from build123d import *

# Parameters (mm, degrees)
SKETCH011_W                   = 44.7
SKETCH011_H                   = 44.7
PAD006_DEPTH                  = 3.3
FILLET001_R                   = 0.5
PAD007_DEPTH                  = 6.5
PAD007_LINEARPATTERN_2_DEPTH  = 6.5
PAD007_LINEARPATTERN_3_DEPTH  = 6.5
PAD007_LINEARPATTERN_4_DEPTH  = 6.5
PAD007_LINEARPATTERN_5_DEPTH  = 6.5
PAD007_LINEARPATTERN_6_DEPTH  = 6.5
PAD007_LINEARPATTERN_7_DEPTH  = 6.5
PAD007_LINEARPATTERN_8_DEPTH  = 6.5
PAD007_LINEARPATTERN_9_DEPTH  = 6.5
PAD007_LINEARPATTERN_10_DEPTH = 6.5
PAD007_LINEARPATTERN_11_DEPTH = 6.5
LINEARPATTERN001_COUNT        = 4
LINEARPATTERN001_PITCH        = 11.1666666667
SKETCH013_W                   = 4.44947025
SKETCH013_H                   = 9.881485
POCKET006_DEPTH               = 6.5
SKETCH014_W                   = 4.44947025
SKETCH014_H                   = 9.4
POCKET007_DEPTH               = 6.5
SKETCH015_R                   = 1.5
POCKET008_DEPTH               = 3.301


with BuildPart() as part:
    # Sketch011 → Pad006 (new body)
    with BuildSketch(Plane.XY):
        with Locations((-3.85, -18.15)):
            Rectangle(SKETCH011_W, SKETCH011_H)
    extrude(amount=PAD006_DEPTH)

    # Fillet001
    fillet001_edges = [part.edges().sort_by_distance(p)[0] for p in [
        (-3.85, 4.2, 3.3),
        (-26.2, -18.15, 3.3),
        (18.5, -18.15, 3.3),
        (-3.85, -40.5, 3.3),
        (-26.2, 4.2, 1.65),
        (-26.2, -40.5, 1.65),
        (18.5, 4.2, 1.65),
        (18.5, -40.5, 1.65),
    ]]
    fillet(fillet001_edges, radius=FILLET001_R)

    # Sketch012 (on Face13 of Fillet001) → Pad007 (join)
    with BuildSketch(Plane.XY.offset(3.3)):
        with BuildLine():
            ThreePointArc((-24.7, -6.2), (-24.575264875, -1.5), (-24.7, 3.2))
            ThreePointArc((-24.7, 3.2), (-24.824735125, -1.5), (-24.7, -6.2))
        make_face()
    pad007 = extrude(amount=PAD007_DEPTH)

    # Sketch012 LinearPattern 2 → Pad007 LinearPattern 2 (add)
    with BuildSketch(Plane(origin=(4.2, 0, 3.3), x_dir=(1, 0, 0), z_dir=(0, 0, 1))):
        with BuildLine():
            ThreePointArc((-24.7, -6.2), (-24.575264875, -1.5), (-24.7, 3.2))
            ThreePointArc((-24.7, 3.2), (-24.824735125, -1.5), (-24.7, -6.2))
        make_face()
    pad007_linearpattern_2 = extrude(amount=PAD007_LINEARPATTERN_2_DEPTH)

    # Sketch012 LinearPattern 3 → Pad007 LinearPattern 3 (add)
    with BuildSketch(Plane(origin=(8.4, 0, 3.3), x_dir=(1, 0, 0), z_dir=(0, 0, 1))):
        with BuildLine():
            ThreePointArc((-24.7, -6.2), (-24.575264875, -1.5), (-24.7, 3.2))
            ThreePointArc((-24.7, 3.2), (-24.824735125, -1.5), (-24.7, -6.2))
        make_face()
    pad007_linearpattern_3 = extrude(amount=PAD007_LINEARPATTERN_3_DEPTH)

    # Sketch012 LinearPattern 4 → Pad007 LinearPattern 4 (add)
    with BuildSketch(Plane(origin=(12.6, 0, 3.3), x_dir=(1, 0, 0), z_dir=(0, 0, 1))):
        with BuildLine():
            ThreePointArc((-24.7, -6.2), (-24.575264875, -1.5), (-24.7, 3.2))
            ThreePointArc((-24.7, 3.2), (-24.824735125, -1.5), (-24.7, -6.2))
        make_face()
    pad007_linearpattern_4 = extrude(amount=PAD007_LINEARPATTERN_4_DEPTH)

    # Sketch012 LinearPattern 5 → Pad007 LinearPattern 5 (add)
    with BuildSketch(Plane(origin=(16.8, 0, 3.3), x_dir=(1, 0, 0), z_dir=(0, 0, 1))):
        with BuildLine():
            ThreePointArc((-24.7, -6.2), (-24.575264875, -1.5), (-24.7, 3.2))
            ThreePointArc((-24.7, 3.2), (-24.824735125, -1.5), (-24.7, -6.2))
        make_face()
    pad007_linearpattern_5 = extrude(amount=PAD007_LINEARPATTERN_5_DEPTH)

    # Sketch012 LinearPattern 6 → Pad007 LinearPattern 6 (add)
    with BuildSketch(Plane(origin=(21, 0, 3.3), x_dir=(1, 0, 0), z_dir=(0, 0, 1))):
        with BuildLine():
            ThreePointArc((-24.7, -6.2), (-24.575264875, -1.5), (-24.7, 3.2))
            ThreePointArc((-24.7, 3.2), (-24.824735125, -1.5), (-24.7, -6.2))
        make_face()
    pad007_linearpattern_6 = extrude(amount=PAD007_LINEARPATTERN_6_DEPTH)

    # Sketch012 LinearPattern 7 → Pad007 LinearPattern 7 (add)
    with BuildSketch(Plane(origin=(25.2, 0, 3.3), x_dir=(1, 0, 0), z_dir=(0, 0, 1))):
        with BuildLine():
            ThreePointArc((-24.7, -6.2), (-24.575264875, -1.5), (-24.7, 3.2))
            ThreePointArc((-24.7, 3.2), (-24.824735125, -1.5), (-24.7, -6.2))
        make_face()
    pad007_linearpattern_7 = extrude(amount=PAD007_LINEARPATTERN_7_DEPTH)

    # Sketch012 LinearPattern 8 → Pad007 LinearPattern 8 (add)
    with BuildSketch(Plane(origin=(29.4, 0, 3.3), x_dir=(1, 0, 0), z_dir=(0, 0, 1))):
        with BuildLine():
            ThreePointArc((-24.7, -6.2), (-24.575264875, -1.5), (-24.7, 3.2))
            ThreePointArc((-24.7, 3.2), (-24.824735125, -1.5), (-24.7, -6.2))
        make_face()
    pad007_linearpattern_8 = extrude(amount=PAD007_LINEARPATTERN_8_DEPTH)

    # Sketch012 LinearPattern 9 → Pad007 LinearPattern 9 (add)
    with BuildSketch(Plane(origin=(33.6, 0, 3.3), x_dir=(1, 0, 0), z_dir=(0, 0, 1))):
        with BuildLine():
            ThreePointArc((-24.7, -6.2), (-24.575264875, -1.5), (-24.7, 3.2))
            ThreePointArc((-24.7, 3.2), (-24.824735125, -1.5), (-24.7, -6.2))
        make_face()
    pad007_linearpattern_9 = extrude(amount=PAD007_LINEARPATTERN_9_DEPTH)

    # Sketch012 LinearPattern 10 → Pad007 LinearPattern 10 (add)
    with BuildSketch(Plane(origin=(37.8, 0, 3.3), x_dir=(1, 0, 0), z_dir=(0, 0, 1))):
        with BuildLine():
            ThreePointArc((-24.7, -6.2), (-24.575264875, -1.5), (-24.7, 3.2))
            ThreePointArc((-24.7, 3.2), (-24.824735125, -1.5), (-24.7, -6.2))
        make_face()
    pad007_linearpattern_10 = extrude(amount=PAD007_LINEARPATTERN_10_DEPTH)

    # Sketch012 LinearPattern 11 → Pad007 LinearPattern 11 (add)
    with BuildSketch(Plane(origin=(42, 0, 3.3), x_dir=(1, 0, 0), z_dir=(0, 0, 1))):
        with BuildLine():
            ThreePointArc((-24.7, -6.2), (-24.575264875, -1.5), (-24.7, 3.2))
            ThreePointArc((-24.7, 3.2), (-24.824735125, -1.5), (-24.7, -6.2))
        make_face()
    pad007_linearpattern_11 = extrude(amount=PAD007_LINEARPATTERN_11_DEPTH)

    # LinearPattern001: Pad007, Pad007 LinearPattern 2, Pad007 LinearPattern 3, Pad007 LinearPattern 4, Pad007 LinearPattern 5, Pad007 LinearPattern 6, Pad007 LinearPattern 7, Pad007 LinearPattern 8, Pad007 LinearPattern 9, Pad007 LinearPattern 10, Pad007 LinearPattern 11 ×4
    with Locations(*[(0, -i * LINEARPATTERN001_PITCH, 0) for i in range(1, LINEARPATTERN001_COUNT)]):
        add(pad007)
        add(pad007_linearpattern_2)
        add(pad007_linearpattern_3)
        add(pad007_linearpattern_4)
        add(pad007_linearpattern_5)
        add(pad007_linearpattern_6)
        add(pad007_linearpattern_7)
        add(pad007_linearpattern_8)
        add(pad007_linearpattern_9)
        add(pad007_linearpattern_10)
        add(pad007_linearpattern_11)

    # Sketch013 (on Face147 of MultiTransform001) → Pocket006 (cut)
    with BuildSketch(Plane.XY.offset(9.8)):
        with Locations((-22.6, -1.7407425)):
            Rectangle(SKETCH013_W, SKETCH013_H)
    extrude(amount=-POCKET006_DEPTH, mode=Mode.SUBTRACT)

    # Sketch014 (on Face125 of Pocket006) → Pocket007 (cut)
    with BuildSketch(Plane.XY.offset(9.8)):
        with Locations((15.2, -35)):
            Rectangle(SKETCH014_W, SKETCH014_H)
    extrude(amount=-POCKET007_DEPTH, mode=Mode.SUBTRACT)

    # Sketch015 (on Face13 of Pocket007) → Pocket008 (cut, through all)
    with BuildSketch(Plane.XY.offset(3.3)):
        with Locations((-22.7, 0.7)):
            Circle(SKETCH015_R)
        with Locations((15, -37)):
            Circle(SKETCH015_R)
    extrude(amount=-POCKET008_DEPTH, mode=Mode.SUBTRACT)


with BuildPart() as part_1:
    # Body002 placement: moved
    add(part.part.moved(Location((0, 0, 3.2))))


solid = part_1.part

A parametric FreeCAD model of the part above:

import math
import FreeCAD as App
import Part
import Sketcher
Q = App.Units.Quantity


def edges_at(feature, points):
    """Names of the edges that pass closest to the given points."""
    edges = feature.Shape.Edges
    near = lambda p: min(range(len(edges)), key=lambda i: edges[i].distToShape(Part.Vertex(*p))[0])
    return sorted({f"Edge{near(p) + 1}" for p in points})


def add_polygon(sketch, points):
    """Adds a closed chain of lines whose ends are joined by coincident constraints."""
    first, n = sketch.GeometryCount, len(points)
    for a, b in zip(points, points[1:] + points[:1]):
        sketch.addGeometry(Part.LineSegment(App.Vector(*a, 0), App.Vector(*b, 0)), False)
    for i in range(n):
        sketch.addConstraint(Sketcher.Constraint("Coincident", first + i, 2, first + (i + 1) % n, 1))

doc = App.newDocument("Part")
body = doc.addObject("PartDesign::Body", "Body")

# Sketch on XY plane
sketch1 = body.newObject("Sketcher::SketchObject", "Sketch")
sketch1.AttachmentSupport = (doc.getObject("XY_Plane"), [""])
sketch1.MapMode = "FlatFace"
add_polygon(sketch1, [(-26.2, 4.2), (-26.2, -40.5), (18.5, -40.5), (18.5, 4.2)])  # lines 0-3
sketch1.addConstraint(Sketcher.Constraint("Vertical", 0))
sketch1.addConstraint(Sketcher.Constraint("Horizontal", 1))
sketch1.addConstraint(Sketcher.Constraint("Vertical", 2))
sketch1.addConstraint(Sketcher.Constraint("Horizontal", 3))
sketch1.addConstraint(Sketcher.Constraint("Equal", 3, 0))
sketch1.addConstraint(Sketcher.Constraint("DistanceX", 1, 1, 1, 2, Q("44.7 mm")))
sketch1.addConstraint(Sketcher.Constraint("DistanceX", 0, 2, -1, 1, Q("26.2 mm")))
sketch1.addConstraint(Sketcher.Constraint("DistanceY", 0, 2, -1, 1, Q("40.5 mm")))
pad1 = body.newObject("PartDesign::Pad", "Pad")
pad1.Profile = sketch1
pad1.Length = 3.3
doc.recompute()

fillet = body.newObject("PartDesign::Fillet", "Fillet")
fillet.Base = (pad1, edges_at(pad1, [
    (-3.85, 4.2, 3.3),
    (-26.2, -18.15, 3.3),
    (18.5, -18.15, 3.3),
    (-3.85, -40.5, 3.3),
    (-26.2, 4.2, 1.65),
    (-26.2, -40.5, 1.65),
    (18.5, 4.2, 1.65),
    (18.5, -40.5, 1.65),
]))
fillet.Radius = 0.5

# Sketch on XY plane
sketch2 = body.newObject("Sketcher::SketchObject", "Sketch001")
sketch2.AttachmentSupport = (doc.getObject("XY_Plane"), [""])
sketch2.MapMode = "FlatFace"
sketch2.AttachmentOffset = App.Placement(App.Vector(0, 0, 3.3), App.Rotation())
sketch2.addGeometry(Part.ArcOfCircle(Part.Circle(App.Vector(-113.185265, -1.5, 0), App.Vector(0, 0, 1), 88.61), math.radians(-3.040476), math.radians(3.040476)), False)
sketch2.addGeometry(Part.ArcOfCircle(Part.Circle(App.Vector(63.785265, -1.5, 0), App.Vector(0, 0, 1), 88.61), math.radians(176.959524), math.radians(183.040476)), False)
sketch2.addConstraint(Sketcher.Constraint("Coincident", 0, 1, 1, 2))
sketch2.addConstraint(Sketcher.Constraint("Coincident", 1, 1, 0, 2))
sketch2.addConstraint(Sketcher.Constraint("Equal", 0, 1))
sketch2.addConstraint(Sketcher.Constraint("Horizontal", 0, 3, 1, 3))
sketch2.addConstraint(Sketcher.Constraint("Radius", 0, Q("88.61 mm")))
sketch2.addConstraint(Sketcher.Constraint("DistanceY", 0, 3, -1, 1, Q("1.5 mm")))
sketch2.addConstraint(Sketcher.Constraint("DistanceX", 0, 1, -1, 1, Q("24.7 mm")))
sketch2.addConstraint(Sketcher.Constraint("DistanceY", 0, 1, -1, 1, Q("6.2 mm")))
pad2 = body.newObject("PartDesign::Pad", "Pad001")
pad2.Profile = sketch2
pad2.Length = 6.5

# Sketch on XY plane
sketch3 = body.newObject("Sketcher::SketchObject", "Sketch002")
sketch3.AttachmentSupport = (doc.getObject("XY_Plane"), [""])
sketch3.MapMode = "FlatFace"
sketch3.AttachmentOffset = App.Placement(App.Vector(0, 0, 3.3), App.Rotation())
sketch3.addGeometry(Part.ArcOfCircle(Part.Circle(App.Vector(-108.985265, -1.5, 0), App.Vector(0, 0, 1), 88.61), math.radians(-3.040476), math.radians(3.040476)), False)
sketch3.addGeometry(Part.ArcOfCircle(Part.Circle(App.Vector(67.985265, -1.5, 0), App.Vector(0, 0, 1), 88.61), math.radians(176.959524), math.radians(183.040476)), False)
sketch3.addConstraint(Sketcher.Constraint("Coincident", 0, 1, 1, 2))
sketch3.addConstraint(Sketcher.Constraint("Coincident", 1, 1, 0, 2))
sketch3.addConstraint(Sketcher.Constraint("Equal", 0, 1))
sketch3.addConstraint(Sketcher.Constraint("Horizontal", 0, 3, 1, 3))
sketch3.addConstraint(Sketcher.Constraint("Radius", 0, Q("88.61 mm")))
sketch3.addConstraint(Sketcher.Constraint("DistanceY", 0, 3, -1, 1, Q("1.5 mm")))
sketch3.addConstraint(Sketcher.Constraint("DistanceX", 0, 1, -1, 1, Q("20.5 mm")))
sketch3.addConstraint(Sketcher.Constraint("DistanceY", 0, 1, -1, 1, Q("6.2 mm")))
pad3 = body.newObject("PartDesign::Pad", "Pad002")
pad3.Profile = sketch3
pad3.Length = 6.5

# Sketch on XY plane
sketch4 = body.newObject("Sketcher::SketchObject", "Sketch003")
sketch4.AttachmentSupport = (doc.getObject("XY_Plane"), [""])
sketch4.MapMode = "FlatFace"
sketch4.AttachmentOffset = App.Placement(App.Vector(0, 0, 3.3), App.Rotation())
sketch4.addGeometry(Part.ArcOfCircle(Part.Circle(App.Vector(-104.785265, -1.5, 0), App.Vector(0, 0, 1), 88.61), math.radians(-3.040476), math.radians(3.040476)), False)
sketch4.addGeometry(Part.ArcOfCircle(Part.Circle(App.Vector(72.185265, -1.5, 0), App.Vector(0, 0, 1), 88.61), math.radians(176.959524), math.radians(183.040476)), False)
sketch4.addConstraint(Sketcher.Constraint("Coincident", 0, 1, 1, 2))
sketch4.addConstraint(Sketcher.Constraint("Coincident", 1, 1, 0, 2))
sketch4.addConstraint(Sketcher.Constraint("Equal", 0, 1))
sketch4.addConstraint(Sketcher.Constraint("Horizontal", 0, 3, 1, 3))
sketch4.addConstraint(Sketcher.Constraint("Radius", 0, Q("88.61 mm")))
sketch4.addConstraint(Sketcher.Constraint("DistanceY", 0, 3, -1, 1, Q("1.5 mm")))
sketch4.addConstraint(Sketcher.Constraint("DistanceX", 0, 1, -1, 1, Q("16.3 mm")))
sketch4.addConstraint(Sketcher.Constraint("DistanceY", 0, 1, -1, 1, Q("6.2 mm")))
pad4 = body.newObject("PartDesign::Pad", "Pad003")
pad4.Profile = sketch4
pad4.Length = 6.5

# Sketch on XY plane
sketch5 = body.newObject("Sketcher::SketchObject", "Sketch004")
sketch5.AttachmentSupport = (doc.getObject("XY_Plane"), [""])
sketch5.MapMode = "FlatFace"
sketch5.AttachmentOffset = App.Placement(App.Vector(0, 0, 3.3), App.Rotation())
sketch5.addGeometry(Part.ArcOfCircle(Part.Circle(App.Vector(-100.585265, -1.5, 0), App.Vector(0, 0, 1), 88.61), math.radians(-3.040476), math.radians(3.040476)), False)
sketch5.addGeometry(Part.ArcOfCircle(Part.Circle(App.Vector(76.385265, -1.5, 0), App.Vector(0, 0, 1), 88.61), math.radians(176.959524), math.radians(183.040476)), False)
sketch5.addConstraint(Sketcher.Constraint("Coincident", 0, 1, 1, 2))
sketch5.addConstraint(Sketcher.Constraint("Coincident", 1, 1, 0, 2))
sketch5.addConstraint(Sketcher.Constraint("Equal", 0, 1))
sketch5.addConstraint(Sketcher.Constraint("Horizontal", 0, 3, 1, 3))
sketch5.addConstraint(Sketcher.Constraint("Radius", 0, Q("88.61 mm")))
sketch5.addConstraint(Sketcher.Constraint("DistanceY", 0, 3, -1, 1, Q("1.5 mm")))
sketch5.addConstraint(Sketcher.Constraint("DistanceX", 0, 1, -1, 1, Q("12.1 mm")))
sketch5.addConstraint(Sketcher.Constraint("DistanceY", 0, 1, -1, 1, Q("6.2 mm")))
pad5 = body.newObject("PartDesign::Pad", "Pad004")
pad5.Profile = sketch5
pad5.Length = 6.5

# Sketch on XY plane
sketch6 = body.newObject("Sketcher::SketchObject", "Sketch005")
sketch6.AttachmentSupport = (doc.getObject("XY_Plane"), [""])
sketch6.MapMode = "FlatFace"
sketch6.AttachmentOffset = App.Placement(App.Vector(0, 0, 3.3), App.Rotation())
sketch6.addGeometry(Part.ArcOfCircle(Part.Circle(App.Vector(-96.385265, -1.5, 0), App.Vector(0, 0, 1), 88.61), math.radians(-3.040476), math.radians(3.040476)), False)
sketch6.addGeometry(Part.ArcOfCircle(Part.Circle(App.Vector(80.585265, -1.5, 0), App.Vector(0, 0, 1), 88.61), math.radians(176.959524), math.radians(183.040476)), False)
sketch6.addConstraint(Sketcher.Constraint("Coincident", 0, 1, 1, 2))
sketch6.addConstraint(Sketcher.Constraint("Coincident", 1, 1, 0, 2))
sketch6.addConstraint(Sketcher.Constraint("Equal", 0, 1))
sketch6.addConstraint(Sketcher.Constraint("Horizontal", 0, 3, 1, 3))
sketch6.addConstraint(Sketcher.Constraint("Radius", 0, Q("88.61 mm")))
sketch6.addConstraint(Sketcher.Constraint("DistanceY", 0, 3, -1, 1, Q("1.5 mm")))
sketch6.addConstraint(Sketcher.Constraint("DistanceX", 0, 1, -1, 1, Q("7.9 mm")))
sketch6.addConstraint(Sketcher.Constraint("DistanceY", 0, 1, -1, 1, Q("6.2 mm")))
pad6 = body.newObject("PartDesign::Pad", "Pad005")
pad6.Profile = sketch6
pad6.Length = 6.5

# Sketch on XY plane
sketch7 = body.newObject("Sketcher::SketchObject", "Sketch006")
sketch7.AttachmentSupport = (doc.getObject("XY_Plane"), [""])
sketch7.MapMode = "FlatFace"
sketch7.AttachmentOffset = App.Placement(App.Vector(0, 0, 3.3), App.Rotation())
sketch7.addGeometry(Part.ArcOfCircle(Part.Circle(App.Vector(-92.185265, -1.5, 0), App.Vector(0, 0, 1), 88.61), math.radians(-3.040476), math.radians(3.040476)), False)
sketch7.addGeometry(Part.ArcOfCircle(Part.Circle(App.Vector(84.785265, -1.5, 0), App.Vector(0, 0, 1), 88.61), math.radians(176.959524), math.radians(183.040476)), False)
sketch7.addConstraint(Sketcher.Constraint("Coincident", 0, 1, 1, 2))
sketch7.addConstraint(Sketcher.Constraint("Coincident", 1, 1, 0, 2))
sketch7.addConstraint(Sketcher.Constraint("Equal", 0, 1))
sketch7.addConstraint(Sketcher.Constraint("Horizontal", 0, 3, 1, 3))
sketch7.addConstraint(Sketcher.Constraint("Radius", 0, Q("88.61 mm")))
sketch7.addConstraint(Sketcher.Constraint("DistanceY", 0, 3, -1, 1, Q("1.5 mm")))
sketch7.addConstraint(Sketcher.Constraint("DistanceX", 0, 1, -1, 1, Q("3.7 mm")))
sketch7.addConstraint(Sketcher.Constraint("DistanceY", 0, 1, -1, 1, Q("6.2 mm")))
pad7 = body.newObject("PartDesign::Pad", "Pad006")
pad7.Profile = sketch7
pad7.Length = 6.5

# Sketch on XY plane
sketch8 = body.newObject("Sketcher::SketchObject", "Sketch007")
sketch8.AttachmentSupport = (doc.getObject("XY_Plane"), [""])
sketch8.MapMode = "FlatFace"
sketch8.AttachmentOffset = App.Placement(App.Vector(0, 0, 3.3), App.Rotation())
sketch8.addGeometry(Part.ArcOfCircle(Part.Circle(App.Vector(-87.985265, -1.5, 0), App.Vector(0, 0, 1), 88.61), math.radians(-3.040476), math.radians(3.040476)), False)
sketch8.addGeometry(Part.ArcOfCircle(Part.Circle(App.Vector(88.985265, -1.5, 0), App.Vector(0, 0, 1), 88.61), math.radians(176.959524), math.radians(183.040476)), False)
sketch8.addConstraint(Sketcher.Constraint("Coincident", 0, 1, 1, 2))
sketch8.addConstraint(Sketcher.Constraint("Coincident", 1, 1, 0, 2))
sketch8.addConstraint(Sketcher.Constraint("Equal", 0, 1))
sketch8.addConstraint(Sketcher.Constraint("Horizontal", 0, 3, 1, 3))
sketch8.addConstraint(Sketcher.Constraint("Radius", 0, Q("88.61 mm")))
sketch8.addConstraint(Sketcher.Constraint("DistanceY", 0, 3, -1, 1, Q("1.5 mm")))
sketch8.addConstraint(Sketcher.Constraint("DistanceX", -1, 1, 0, 1, Q("0.5 mm")))
sketch8.addConstraint(Sketcher.Constraint("DistanceY", 0, 1, -1, 1, Q("6.2 mm")))
pad8 = body.newObject("PartDesign::Pad", "Pad007")
pad8.Profile = sketch8
pad8.Length = 6.5

# Sketch on XY plane
sketch9 = body.newObject("Sketcher::SketchObject", "Sketch008")
sketch9.AttachmentSupport = (doc.getObject("XY_Plane"), [""])
sketch9.MapMode = "FlatFace"
sketch9.AttachmentOffset = App.Placement(App.Vector(0, 0, 3.3), App.Rotation())
sketch9.addGeometry(Part.ArcOfCircle(Part.Circle(App.Vector(-83.785265, -1.5, 0), App.Vector(0, 0, 1), 88.61), math.radians(-3.040476), math.radians(3.040476)), False)
sketch9.addGeometry(Part.ArcOfCircle(Part.Circle(App.Vector(93.185265, -1.5, 0), App.Vector(0, 0, 1), 88.61), math.radians(176.959524), math.radians(183.040476)), False)
sketch9.addConstraint(Sketcher.Constraint("Coincident", 0, 1, 1, 2))
sketch9.addConstraint(Sketcher.Constraint("Coincident", 1, 1, 0, 2))
sketch9.addConstraint(Sketcher.Constraint("Equal", 0, 1))
sketch9.addConstraint(Sketcher.Constraint("Horizontal", 0, 3, 1, 3))
sketch9.addConstraint(Sketcher.Constraint("Radius", 0, Q("88.61 mm")))
sketch9.addConstraint(Sketcher.Constraint("DistanceY", 0, 3, -1, 1, Q("1.5 mm")))
sketch9.addConstraint(Sketcher.Constraint("DistanceX", -1, 1, 0, 1, Q("4.7 mm")))
sketch9.addConstraint(Sketcher.Constraint("DistanceY", 0, 1, -1, 1, Q("6.2 mm")))
pad9 = body.newObject("PartDesign::Pad", "Pad008")
pad9.Profile = sketch9
pad9.Length = 6.5

# Sketch on XY plane
sketch10 = body.newObject("Sketcher::SketchObject", "Sketch009")
sketch10.AttachmentSupport = (doc.getObject("XY_Plane"), [""])
sketch10.MapMode = "FlatFace"
sketch10.AttachmentOffset = App.Placement(App.Vector(0, 0, 3.3), App.Rotation())
sketch10.addGeometry(Part.ArcOfCircle(Part.Circle(App.Vector(-79.585265, -1.5, 0), App.Vector(0, 0, 1), 88.61), math.radians(-3.040476), math.radians(3.040476)), False)
sketch10.addGeometry(Part.ArcOfCircle(Part.Circle(App.Vector(97.385265, -1.5, 0), App.Vector(0, 0, 1), 88.61), math.radians(176.959524), math.radians(183.040476)), False)
sketch10.addConstraint(Sketcher.Constraint("Coincident", 0, 1, 1, 2))
sketch10.addConstraint(Sketcher.Constraint("Coincident", 1, 1, 0, 2))
sketch10.addConstraint(Sketcher.Constraint("Equal", 0, 1))
sketch10.addConstraint(Sketcher.Constraint("Horizontal", 0, 3, 1, 3))
sketch10.addConstraint(Sketcher.Constraint("Radius", 0, Q("88.61 mm")))
sketch10.addConstraint(Sketcher.Constraint("DistanceY", 0, 3, -1, 1, Q("1.5 mm")))
sketch10.addConstraint(Sketcher.Constraint("DistanceX", -1, 1, 0, 1, Q("8.9 mm")))
sketch10.addConstraint(Sketcher.Constraint("DistanceY", 0, 1, -1, 1, Q("6.2 mm")))
pad10 = body.newObject("PartDesign::Pad", "Pad009")
pad10.Profile = sketch10
pad10.Length = 6.5

# Sketch on XY plane
sketch11 = body.newObject("Sketcher::SketchObject", "Sketch010")
sketch11.AttachmentSupport = (doc.getObject("XY_Plane"), [""])
sketch11.MapMode = "FlatFace"
sketch11.AttachmentOffset = App.Placement(App.Vector(0, 0, 3.3), App.Rotation())
sketch11.addGeometry(Part.ArcOfCircle(Part.Circle(App.Vector(-75.385265, -1.5, 0), App.Vector(0, 0, 1), 88.61), math.radians(-3.040476), math.radians(3.040476)), False)
sketch11.addGeometry(Part.ArcOfCircle(Part.Circle(App.Vector(101.585265, -1.5, 0), App.Vector(0, 0, 1), 88.61), math.radians(176.959524), math.radians(183.040476)), False)
sketch11.addConstraint(Sketcher.Constraint("Coincident", 0, 1, 1, 2))
sketch11.addConstraint(Sketcher.Constraint("Coincident", 1, 1, 0, 2))
sketch11.addConstraint(Sketcher.Constraint("Equal", 0, 1))
sketch11.addConstraint(Sketcher.Constraint("Horizontal", 0, 3, 1, 3))
sketch11.addConstraint(Sketcher.Constraint("Radius", 0, Q("88.61 mm")))
sketch11.addConstraint(Sketcher.Constraint("DistanceY", 0, 3, -1, 1, Q("1.5 mm")))
sketch11.addConstraint(Sketcher.Constraint("DistanceX", -1, 1, 0, 1, Q("13.1 mm")))
sketch11.addConstraint(Sketcher.Constraint("DistanceY", 0, 1, -1, 1, Q("6.2 mm")))
pad11 = body.newObject("PartDesign::Pad", "Pad010")
pad11.Profile = sketch11
pad11.Length = 6.5

# Sketch on XY plane
sketch12 = body.newObject("Sketcher::SketchObject", "Sketch011")
sketch12.AttachmentSupport = (doc.getObject("XY_Plane"), [""])
sketch12.MapMode = "FlatFace"
sketch12.AttachmentOffset = App.Placement(App.Vector(0, 0, 3.3), App.Rotation())
sketch12.addGeometry(Part.ArcOfCircle(Part.Circle(App.Vector(-71.185265, -1.5, 0), App.Vector(0, 0, 1), 88.61), math.radians(-3.040476), math.radians(3.040476)), False)
sketch12.addGeometry(Part.ArcOfCircle(Part.Circle(App.Vector(105.785265, -1.5, 0), App.Vector(0, 0, 1), 88.61), math.radians(176.959524), math.radians(183.040476)), False)
sketch12.addConstraint(Sketcher.Constraint("Coincident", 0, 1, 1, 2))
sketch12.addConstraint(Sketcher.Constraint("Coincident", 1, 1, 0, 2))
sketch12.addConstraint(Sketcher.Constraint("Equal", 0, 1))
sketch12.addConstraint(Sketcher.Constraint("Horizontal", 0, 3, 1, 3))
sketch12.addConstraint(Sketcher.Constraint("Radius", 0, Q("88.61 mm")))
sketch12.addConstraint(Sketcher.Constraint("DistanceY", 0, 3, -1, 1, Q("1.5 mm")))
sketch12.addConstraint(Sketcher.Constraint("DistanceX", -1, 1, 0, 1, Q("17.3 mm")))
sketch12.addConstraint(Sketcher.Constraint("DistanceY", 0, 1, -1, 1, Q("6.2 mm")))
pad12 = body.newObject("PartDesign::Pad", "Pad011")
pad12.Profile = sketch12
pad12.Length = 6.5
doc.recompute()

linearpattern = body.newObject("PartDesign::LinearPattern", "LinearPattern")
linearpattern.Originals = [pad2, pad3, pad4, pad5, pad6, pad7, pad8, pad9, pad10, pad11, pad12]
linearpattern.Direction = (doc.getObject("Y_Axis"), [""])
linearpattern.Mode = "offset"
linearpattern.Offset = 11.166667
linearpattern.Occurrences = 4
linearpattern.Reversed = True
body.Tip = linearpattern

# Sketch on XY plane
sketch13 = body.newObject("Sketcher::SketchObject", "Sketch012")
sketch13.AttachmentSupport = (doc.getObject("XY_Plane"), [""])
sketch13.MapMode = "FlatFace"
sketch13.AttachmentOffset = App.Placement(App.Vector(0, 0, 9.8), App.Rotation())
add_polygon(sketch13, [(-24.824735, 3.2), (-24.824735, -6.681485), (-20.375265, -6.681485), (-20.375265, 3.2)])  # lines 0-3
sketch13.addConstraint(Sketcher.Constraint("Vertical", 0))
sketch13.addConstraint(Sketcher.Constraint("Horizontal", 1))
sketch13.addConstraint(Sketcher.Constraint("Vertical", 2))
sketch13.addConstraint(Sketcher.Constraint("Horizontal", 3))
sketch13.addConstraint(Sketcher.Constraint("DistanceY", -1, 1, 2, 2, Q("3.2 mm")))
sketch13.addConstraint(Sketcher.Constraint("DistanceX", 1, 1, 1, 2, Q("4.44947 mm")))
sketch13.addConstraint(Sketcher.Constraint("DistanceY", 0, 2, 0, 1, Q("9.881485 mm")))
sketch13.addConstraint(Sketcher.Constraint("DistanceX", 0, 2, -1, 1, Q("24.824735 mm")))
pocket1 = body.newObject("PartDesign::Pocket", "Pocket")
pocket1.Profile = sketch13
pocket1.Length = 6.5

# Sketch on XY plane
sketch14 = body.newObject("Sketcher::SketchObject", "Sketch013")
sketch14.AttachmentSupport = (doc.getObject("XY_Plane"), [""])
sketch14.MapMode = "FlatFace"
sketch14.AttachmentOffset = App.Placement(App.Vector(0, 0, 9.8), App.Rotation())
add_polygon(sketch14, [(12.975265, -30.3), (12.975265, -39.7), (17.424735, -39.7), (17.424735, -30.3)])  # lines 0-3
sketch14.addConstraint(Sketcher.Constraint("Vertical", 0))
sketch14.addConstraint(Sketcher.Constraint("Horizontal", 1))
sketch14.addConstraint(Sketcher.Constraint("Vertical", 2))
sketch14.addConstraint(Sketcher.Constraint("Horizontal", 3))
sketch14.addConstraint(Sketcher.Constraint("DistanceY", 0, 2, 0, 1, Q("9.4 mm")))
sketch14.addConstraint(Sketcher.Constraint("DistanceY", 0, 2, -1, 1, Q("39.7 mm")))
sketch14.addConstraint(Sketcher.Constraint("DistanceX", 1, 1, 1, 2, Q("4.44947 mm")))
sketch14.addConstraint(Sketcher.Constraint("DistanceX", -1, 1, 0, 2, Q("12.975265 mm")))
pocket2 = body.newObject("PartDesign::Pocket", "Pocket001")
pocket2.Profile = sketch14
pocket2.Length = 6.5

# Sketch on XY plane
sketch15 = body.newObject("Sketcher::SketchObject", "Sketch014")
sketch15.AttachmentSupport = (doc.getObject("XY_Plane"), [""])
sketch15.MapMode = "FlatFace"
sketch15.AttachmentOffset = App.Placement(App.Vector(0, 0, 3.3), App.Rotation())
sketch15.addGeometry(Part.Circle(App.Vector(-22.7, 0.7, 0), App.Vector(0, 0, 1), 1.5), False)
sketch15.addGeometry(Part.Circle(App.Vector(15, -37, 0), App.Vector(0, 0, 1), 1.5), False)
sketch15.addConstraint(Sketcher.Constraint("Equal", 0, 1))
sketch15.addConstraint(Sketcher.Constraint("Diameter", 0, Q("3 mm")))
sketch15.addConstraint(Sketcher.Constraint("DistanceX", -1, 1, 1, 3, Q("15 mm")))
sketch15.addConstraint(Sketcher.Constraint("DistanceY", 1, 3, -1, 1, Q("37 mm")))
sketch15.addConstraint(Sketcher.Constraint("DistanceX", 0, 3, -1, 1, Q("22.7 mm")))
sketch15.addConstraint(Sketcher.Constraint("DistanceY", -1, 1, 0, 3, Q("0.7 mm")))
pocket3 = body.newObject("PartDesign::Pocket", "Pocket002")
pocket3.Profile = sketch15
pocket3.Type = "ThroughAll"
body2 = doc.addObject("PartDesign::Body", "Body001")
doc.recompute()

body.Placement = App.Placement(App.Vector(0, 0, 3.2), App.Rotation(App.Vector(0, 0, 1), 0))
boolean = body2.newObject("PartDesign::Boolean", "Boolean")
boolean.Type = "Fuse"
boolean.addObjects([body])

doc.recompute()
